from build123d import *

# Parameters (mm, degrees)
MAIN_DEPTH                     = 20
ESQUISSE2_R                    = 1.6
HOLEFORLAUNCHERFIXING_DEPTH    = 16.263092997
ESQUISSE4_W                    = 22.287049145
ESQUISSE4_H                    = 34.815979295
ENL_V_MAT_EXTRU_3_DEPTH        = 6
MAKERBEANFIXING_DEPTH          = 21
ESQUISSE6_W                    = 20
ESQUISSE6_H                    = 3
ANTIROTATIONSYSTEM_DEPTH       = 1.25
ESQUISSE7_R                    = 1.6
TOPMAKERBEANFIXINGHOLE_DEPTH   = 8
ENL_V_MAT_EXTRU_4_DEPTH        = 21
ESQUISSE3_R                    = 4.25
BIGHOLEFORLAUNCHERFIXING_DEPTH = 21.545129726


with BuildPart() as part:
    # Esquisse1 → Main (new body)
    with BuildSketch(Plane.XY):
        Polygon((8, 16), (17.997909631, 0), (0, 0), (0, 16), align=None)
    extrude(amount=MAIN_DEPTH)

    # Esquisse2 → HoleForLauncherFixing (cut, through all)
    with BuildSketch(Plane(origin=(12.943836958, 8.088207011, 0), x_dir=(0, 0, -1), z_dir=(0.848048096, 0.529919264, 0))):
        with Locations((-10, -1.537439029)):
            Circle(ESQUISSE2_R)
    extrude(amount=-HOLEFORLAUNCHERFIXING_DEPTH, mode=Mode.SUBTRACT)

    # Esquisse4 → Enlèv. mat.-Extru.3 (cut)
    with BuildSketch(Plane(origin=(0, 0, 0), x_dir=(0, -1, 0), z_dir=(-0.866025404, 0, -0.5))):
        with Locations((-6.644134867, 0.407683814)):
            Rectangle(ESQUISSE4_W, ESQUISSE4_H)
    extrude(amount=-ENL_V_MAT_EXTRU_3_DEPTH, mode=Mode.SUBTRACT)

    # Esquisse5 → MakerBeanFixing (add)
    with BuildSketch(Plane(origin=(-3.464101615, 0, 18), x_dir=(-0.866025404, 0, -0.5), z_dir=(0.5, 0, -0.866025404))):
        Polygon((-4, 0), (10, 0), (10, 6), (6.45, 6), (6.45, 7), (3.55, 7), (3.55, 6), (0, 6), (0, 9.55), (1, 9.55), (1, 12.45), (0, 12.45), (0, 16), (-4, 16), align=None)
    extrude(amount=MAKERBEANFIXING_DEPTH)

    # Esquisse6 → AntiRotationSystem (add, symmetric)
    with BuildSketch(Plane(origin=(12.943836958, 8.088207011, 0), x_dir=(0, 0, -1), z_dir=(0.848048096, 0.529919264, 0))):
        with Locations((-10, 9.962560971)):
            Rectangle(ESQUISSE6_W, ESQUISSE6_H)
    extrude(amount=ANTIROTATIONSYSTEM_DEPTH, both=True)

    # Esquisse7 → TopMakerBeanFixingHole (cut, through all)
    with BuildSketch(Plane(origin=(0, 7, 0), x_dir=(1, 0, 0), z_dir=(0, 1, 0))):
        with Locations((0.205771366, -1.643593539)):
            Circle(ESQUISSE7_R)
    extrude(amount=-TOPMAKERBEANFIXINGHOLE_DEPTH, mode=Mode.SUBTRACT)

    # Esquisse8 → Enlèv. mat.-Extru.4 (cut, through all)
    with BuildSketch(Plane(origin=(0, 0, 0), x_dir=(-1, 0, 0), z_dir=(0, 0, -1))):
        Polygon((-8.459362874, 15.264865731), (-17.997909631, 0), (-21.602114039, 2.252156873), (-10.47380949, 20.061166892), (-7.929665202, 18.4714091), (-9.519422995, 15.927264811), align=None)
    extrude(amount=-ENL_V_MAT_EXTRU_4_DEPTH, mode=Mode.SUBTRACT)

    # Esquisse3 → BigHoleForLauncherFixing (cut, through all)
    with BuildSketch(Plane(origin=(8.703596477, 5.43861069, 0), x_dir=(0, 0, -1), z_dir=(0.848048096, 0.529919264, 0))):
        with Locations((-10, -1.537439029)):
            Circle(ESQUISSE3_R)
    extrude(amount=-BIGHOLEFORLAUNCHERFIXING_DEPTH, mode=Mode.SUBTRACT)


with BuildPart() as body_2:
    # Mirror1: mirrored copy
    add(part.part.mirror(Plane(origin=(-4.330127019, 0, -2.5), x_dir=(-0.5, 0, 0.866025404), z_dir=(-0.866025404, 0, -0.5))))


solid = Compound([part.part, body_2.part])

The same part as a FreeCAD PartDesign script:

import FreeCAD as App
import Part
import Sketcher
Q = App.Units.Quantity


def add_polygon(sketch, points):
    """Adds a closed chain of lines whose ends are joined by coincident constraints."""
    first, n = sketch.GeometryCount, len(points)
    for a, b in zip(points, points[1:] + points[:1]):
        sketch.addGeometry(Part.LineSegment(App.Vector(*a, 0), App.Vector(*b, 0)), False)
    for i in range(n):
        sketch.addConstraint(Sketcher.Constraint("Coincident", first + i, 2, first + (i + 1) % n, 1))

doc = App.newDocument("Part")
body = doc.addObject("PartDesign::Body", "Body")

sketch1 = body.newObject("Sketcher::SketchObject", "Sketch")
sketch1.AttachmentSupport = (doc.getObject("XY_Plane"), [""])
sketch1.MapMode = "FlatFace"
add_polygon(sketch1, [(17.99791, 0), (8, 16), (0, 16), (0, 0)])
sketch1.addConstraint([
    Sketcher.Constraint("Horizontal", 1),
    Sketcher.Constraint("Vertical", 2),
    Sketcher.Constraint("Horizontal", 3),
    Sketcher.Constraint("Coincident", 2, 2, -1, 1),
    Sketcher.Constraint("DistanceX", 1, 2, 1, 1, Q("8 mm")),
    Sketcher.Constraint("DistanceY", 2, 2, 2, 1, Q("16 mm")),
    Sketcher.Constraint("Angle", 0, Q("122 deg")),
])
pad1 = body.newObject("PartDesign::Pad", "Pad")
pad1.Profile = sketch1
pad1.Length = 20

sketch2 = body.newObject("Sketcher::SketchObject", "Sketch001")
sketch2.Placement = App.Placement(App.Vector(12.943837, 8.088207, 0), App.Rotation(App.Vector(0, 0, -1), App.Vector(-0.529919264, 0.848048096, 0), App.Vector(0.848048096, 0.529919264, 0), "ZXY"))
sketch2.addGeometry(Part.Circle(App.Vector(-10, -1.537439, 0), App.Vector(0, 0, 1), 1.6), False)
sketch2.addConstraint([
    Sketcher.Constraint("Diameter", 0, Q("3.2 mm")),
    Sketcher.Constraint("DistanceX", 0, 3, -1, 1, Q("10 mm")),
    Sketcher.Constraint("DistanceY", 0, 3, -1, 1, Q("1.537439 mm")),
])
pocket1 = body.newObject("PartDesign::Pocket", "Pocket")
pocket1.Profile = sketch2
pocket1.Type = "ThroughAll"

sketch3 = body.newObject("Sketcher::SketchObject", "Sketch002")
sketch3.Placement = App.Placement(App.Vector(0, 0, 0), App.Rotation(App.Vector(0, -1, 0), App.Vector(-0.5, 0, 0.866025404), App.Vector(-0.866025404, 0, -0.5), "ZXY"))
add_polygon(sketch3, [(-17.787659, 17.815673), (-17.787659, -17.000306), (4.49939, -17.000306), (4.49939, 17.815673)])
sketch3.addConstraint([
    Sketcher.Constraint("Vertical", 0),
    Sketcher.Constraint("Horizontal", 1),
    Sketcher.Constraint("Vertical", 2),
    Sketcher.Constraint("Horizontal", 3),
    Sketcher.Constraint("DistanceX", 1, 1, 1, 2, Q("22.287049 mm")),
    Sketcher.Constraint("DistanceY", 0, 2, 0, 1, Q("34.815979 mm")),
    Sketcher.Constraint("DistanceX", 0, 2, -1, 1, Q("17.787659 mm")),
    Sketcher.Constraint("DistanceY", 0, 2, -1, 1, Q("17.000306 mm")),
])
pocket2 = body.newObject("PartDesign::Pocket", "Pocket001")
pocket2.Profile = sketch3
pocket2.Length = 6

sketch4 = body.newObject("Sketcher::SketchObject", "Sketch003")
sketch4.Placement = App.Placement(App.Vector(-3.464102, 0, 18), App.Rotation(App.Vector(-0.866025404, 0, -0.5), App.Vector(0, 1, 0), App.Vector(0.5, 0, -0.866025404), "ZXY"))
add_polygon(sketch4, [(-4, 0), (10, 0), (10, 6), (6.45, 6), (6.45, 7), (3.55, 7), (3.55, 6), (0, 6), (0, 9.55), (1, 9.55), (1, 12.45), (0, 12.45), (0, 16), (-4, 16)])
sketch4.addConstraint([
    Sketcher.Constraint("Horizontal", 0),
    Sketcher.Constraint("Vertical", 1),
    Sketcher.Constraint("Horizontal", 2),
    Sketcher.Constraint("Vertical", 3),
    Sketcher.Constraint("Horizontal", 4),
    Sketcher.Constraint("Vertical", 5),
    Sketcher.Constraint("Horizontal", 6),
    Sketcher.Constraint("Vertical", 7),
    Sketcher.Constraint("Horizontal", 8),
    Sketcher.Constraint("Vertical", 9),
    Sketcher.Constraint("Horizontal", 10),
    Sketcher.Constraint("Vertical", 11),
    Sketcher.Constraint("Horizontal", 12),
    Sketcher.Constraint("Vertical", 13),
    Sketcher.Constraint("PointOnObject", 0, 2, -1),
    Sketcher.Constraint("PointOnObject", 6, 2, -2),
    Sketcher.Constraint("PointOnObject", 10, 2, -2),
    Sketcher.Constraint("Horizontal", 2, 2, 5, 2),
    Sketcher.Constraint("Equal", 2, 6),
    Sketcher.Constraint("Equal", 10, 3),
    Sketcher.Constraint("Equal", 6, 7),
    Sketcher.Constraint("Equal", 4, 9),
    Sketcher.Constraint("Equal", 7, 11),
    Sketcher.Constraint("DistanceX", 0, 1, 0, 2, Q("14 mm")),
    Sketcher.Constraint("DistanceX", 8, 1, 8, 2, Q("1 mm")),
    Sketcher.Constraint("DistanceX", 12, 2, 12, 1, Q("4 mm")),
    Sketcher.Constraint("DistanceY", 1, 1, 1, 2, Q("6 mm")),
    Sketcher.Constraint("DistanceX", 4, 2, 4, 1, Q("2.9 mm")),
])
pad2 = body.newObject("PartDesign::Pad", "Pad001")
pad2.Profile = sketch4
pad2.Length = 21

sketch5 = body.newObject("Sketcher::SketchObject", "Sketch004")
sketch5.Placement = App.Placement(App.Vector(12.943837, 8.088207, 0), App.Rotation(App.Vector(0, 0, -1), App.Vector(-0.529919264, 0.848048096, 0), App.Vector(0.848048096, 0.529919264, 0), "ZXY"))
add_polygon(sketch5, [(-20, 11.462561), (-20, 8.462561), (0, 8.462561), (0, 11.462561)])
sketch5.addConstraint([
    Sketcher.Constraint("Vertical", 0),
    Sketcher.Constraint("Horizontal", 1),
    Sketcher.Constraint("Vertical", 2),
    Sketcher.Constraint("Horizontal", 3),
    Sketcher.Constraint("PointOnObject", 1, 2, -2),
    Sketcher.Constraint("DistanceX", 1, 1, 1, 2, Q("20 mm")),
    Sketcher.Constraint("DistanceY", 0, 2, 0, 1, Q("3 mm")),
    Sketcher.Constraint("DistanceY", -1, 1, 0, 2, Q("8.462561 mm")),
])
pad3 = body.newObject("PartDesign::Pad", "Pad002")
pad3.Profile = sketch5
pad3.Length = 2.5
pad3.Midplane = True

sketch6 = body.newObject("Sketcher::SketchObject", "Sketch005")
sketch6.AttachmentSupport = (doc.getObject("XZ_Plane"), [""])
sketch6.MapMode = "FlatFace"
sketch6.AttachmentOffset = App.Placement(App.Vector(0, 0, -7), App.Rotation())
sketch6.addGeometry(Part.Circle(App.Vector(0.205771, 1.643594, 0), App.Vector(0, 0, 1), 1.6), False)
sketch6.addConstraint([
    Sketcher.Constraint("Diameter", 0, Q("3.2 mm")),
    Sketcher.Constraint("DistanceX", -1, 1, 0, 3, Q("0.205771 mm")),
    Sketcher.Constraint("DistanceY", -1, 1, 0, 3, Q("1.643594 mm")),
])
pocket3 = body.newObject("PartDesign::Pocket", "Pocket002")
pocket3.Profile = sketch6
pocket3.Type = "ThroughAll"
pocket3.Reversed = True

sketch7 = body.newObject("Sketcher::SketchObject", "Sketch006")
sketch7.AttachmentSupport = (doc.getObject("XY_Plane"), [""])
sketch7.MapMode = "FlatFace"
add_polygon(sketch7, [(17.99791, 0), (8.459363, 15.264866), (9.519423, 15.927265), (7.929665, 18.471409), (10.473809, 20.061167), (21.602114, 2.252157)])
sketch7.addConstraint([
    Sketcher.Constraint("PointOnObject", 5, 2, -1),
    Sketcher.Constraint("Perpendicular", 0, 1),
    Sketcher.Constraint("Perpendicular", 1, 2),
    Sketcher.Constraint("Perpendicular", 2, 3),
    Sketcher.Constraint("Perpendicular", 3, 4),
    Sketcher.Constraint("Perpendicular", 4, 5),
    Sketcher.Constraint("Equal", 2, 3),
    Sketcher.Constraint("Angle", 0, Q("122 deg")),
    Sketcher.Constraint("Distance", 0, Q("18 mm")),
    Sketcher.Constraint("Distance", 2, Q("3 mm")),
    Sketcher.Constraint("Distance", 1, Q("1.25 mm")),
    Sketcher.Constraint("DistanceX", -1, 1, 3, 2, Q("10.473809 mm")),
])
pocket4 = body.newObject("PartDesign::Pocket", "Pocket003")
pocket4.Profile = sketch7
pocket4.Type = "ThroughAll"
pocket4.Reversed = True

sketch8 = body.newObject("Sketcher::SketchObject", "Sketch007")
sketch8.Placement = App.Placement(App.Vector(8.703596, 5.438611, 0), App.Rotation(App.Vector(0, 0, -1), App.Vector(-0.529919264, 0.848048096, 0), App.Vector(0.848048096, 0.529919264, 0), "ZXY"))
sketch8.addGeometry(Part.Circle(App.Vector(-10, -1.537439, 0), App.Vector(0, 0, 1), 4.25), False)
sketch8.addConstraint([
    Sketcher.Constraint("Diameter", 0, Q("8.5 mm")),
    Sketcher.Constraint("DistanceX", 0, 3, -1, 1, Q("10 mm")),
    Sketcher.Constraint("DistanceY", 0, 3, -1, 1, Q("1.537439 mm")),
])
pocket5 = body.newObject("PartDesign::Pocket", "Pocket004")
pocket5.Profile = sketch8
pocket5.Type = "ThroughAll"
body2 = doc.addObject("PartDesign::Body", "Body001")
doc.recompute()

mirroring = doc.addObject("Part::Mirroring", "Mirroring")
mirroring.Source = body
mirroring.Base = App.Vector(-4.330127, 0, -2.5)
mirroring.Normal = App.Vector(-0.866025404, 0, -0.5)
body2.BaseFeature = mirroring
doc.recompute()
mirroring.Visibility = False

doc.recompute()
